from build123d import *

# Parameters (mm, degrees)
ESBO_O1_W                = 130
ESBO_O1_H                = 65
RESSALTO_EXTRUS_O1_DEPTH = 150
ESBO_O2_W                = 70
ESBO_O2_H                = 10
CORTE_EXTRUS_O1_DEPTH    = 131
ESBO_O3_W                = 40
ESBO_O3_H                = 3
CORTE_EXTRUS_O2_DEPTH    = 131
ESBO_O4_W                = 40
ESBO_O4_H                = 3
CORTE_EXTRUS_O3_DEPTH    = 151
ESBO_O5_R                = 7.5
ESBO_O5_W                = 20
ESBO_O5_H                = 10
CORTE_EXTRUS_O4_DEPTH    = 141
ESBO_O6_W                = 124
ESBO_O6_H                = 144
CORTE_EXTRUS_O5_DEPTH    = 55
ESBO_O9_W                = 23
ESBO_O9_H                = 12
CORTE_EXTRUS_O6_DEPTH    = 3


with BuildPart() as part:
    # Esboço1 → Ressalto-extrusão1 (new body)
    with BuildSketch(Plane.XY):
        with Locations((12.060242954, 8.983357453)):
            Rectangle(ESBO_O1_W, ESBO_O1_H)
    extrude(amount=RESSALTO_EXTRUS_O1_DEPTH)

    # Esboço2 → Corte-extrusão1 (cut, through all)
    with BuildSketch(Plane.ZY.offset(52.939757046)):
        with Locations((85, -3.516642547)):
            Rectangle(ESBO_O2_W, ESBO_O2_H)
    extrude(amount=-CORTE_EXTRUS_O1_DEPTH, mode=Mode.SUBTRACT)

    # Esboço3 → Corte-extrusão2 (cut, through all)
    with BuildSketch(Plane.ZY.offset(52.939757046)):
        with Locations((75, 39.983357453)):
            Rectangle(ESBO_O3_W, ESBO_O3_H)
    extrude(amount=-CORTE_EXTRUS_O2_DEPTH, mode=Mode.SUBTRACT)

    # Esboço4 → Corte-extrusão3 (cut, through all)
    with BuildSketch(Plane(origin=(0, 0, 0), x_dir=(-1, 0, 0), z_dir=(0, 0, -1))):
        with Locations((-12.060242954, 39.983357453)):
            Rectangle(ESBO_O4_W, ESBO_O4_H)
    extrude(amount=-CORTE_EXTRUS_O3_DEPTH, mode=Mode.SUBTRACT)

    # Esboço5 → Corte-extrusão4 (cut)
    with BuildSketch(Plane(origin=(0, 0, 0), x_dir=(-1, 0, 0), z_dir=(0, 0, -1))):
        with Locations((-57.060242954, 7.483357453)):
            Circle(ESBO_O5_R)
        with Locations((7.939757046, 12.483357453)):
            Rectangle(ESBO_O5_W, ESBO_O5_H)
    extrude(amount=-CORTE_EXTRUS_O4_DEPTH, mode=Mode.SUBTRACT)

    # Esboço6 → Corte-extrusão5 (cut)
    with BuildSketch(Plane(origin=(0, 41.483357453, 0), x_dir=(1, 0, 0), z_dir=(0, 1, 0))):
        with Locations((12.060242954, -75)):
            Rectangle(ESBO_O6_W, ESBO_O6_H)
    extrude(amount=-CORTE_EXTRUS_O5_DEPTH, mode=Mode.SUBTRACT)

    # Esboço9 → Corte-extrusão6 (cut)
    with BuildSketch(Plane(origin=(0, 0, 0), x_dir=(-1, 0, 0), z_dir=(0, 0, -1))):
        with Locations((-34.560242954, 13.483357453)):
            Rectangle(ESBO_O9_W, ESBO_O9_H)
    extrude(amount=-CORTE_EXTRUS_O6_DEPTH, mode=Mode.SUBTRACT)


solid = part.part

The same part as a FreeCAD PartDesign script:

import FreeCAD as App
import Part
import Sketcher
Q = App.Units.Quantity

doc = App.newDocument("Part")
body = doc.addObject("PartDesign::Body", "Body")

sketch1 = body.newObject("Sketcher::SketchObject", "Sketch")
sketch1.AttachmentSupport = (doc.getObject("XY_Plane"), [""])
sketch1.MapMode = "FlatFace"
sketch1.addGeometry([
    Part.LineSegment(App.Vector(-53, 41, 0), App.Vector(-53, -24, 0)),
    Part.LineSegment(App.Vector(-53, -24, 0), App.Vector(77, -24, 0)),
    Part.LineSegment(App.Vector(77, -24, 0), App.Vector(77, 41, 0)),
    Part.LineSegment(App.Vector(77, 41, 0), App.Vector(-53, 41, 0)),
], False)
sketch1.addConstraint([
    Sketcher.Constraint("Coincident", 0, 2, 1, 1),
    Sketcher.Constraint("Coincident", 1, 2, 2, 1),
    Sketcher.Constraint("Coincident", 2, 2, 3, 1),
    Sketcher.Constraint("Coincident", 3, 2, 0, 1),
    Sketcher.Constraint("Vertical", 0),
    Sketcher.Constraint("Horizontal", 1),
    Sketcher.Constraint("Vertical", 2),
    Sketcher.Constraint("Horizontal", 3),
    Sketcher.Constraint("DistanceX", 1, 1, 1, 2, Q("130 mm")),
    Sketcher.Constraint("DistanceY", 0, 2, 0, 1, Q("65 mm")),
    Sketcher.Constraint("DistanceX", 0, 2, -1, 1, Q("52.939757 mm")),
    Sketcher.Constraint("DistanceY", 0, 2, -1, 1, Q("23.516643 mm")),
])
pad1 = body.newObject("PartDesign::Pad", "Pad")
pad1.Profile = sketch1
pad1.Length = 150

sketch2 = body.newObject("Sketcher::SketchObject", "Sketch001")
sketch2.AttachmentSupport = (doc.getObject("YZ_Plane"), [""])
sketch2.MapMode = "FlatFace"
sketch2.AttachmentOffset = App.Placement(App.Vector(0, 0, -52.939757), App.Rotation())
sketch2.addGeometry([
    Part.LineSegment(App.Vector(1, 50, 0), App.Vector(-9, 50, 0)),
    Part.LineSegment(App.Vector(-9, 50, 0), App.Vector(-9, 120, 0)),
    Part.LineSegment(App.Vector(-9, 120, 0), App.Vector(1, 120, 0)),
    Part.LineSegment(App.Vector(1, 120, 0), App.Vector(1, 50, 0)),
], False)
sketch2.addConstraint([
    Sketcher.Constraint("Coincident", 0, 2, 1, 1),
    Sketcher.Constraint("Coincident", 1, 2, 2, 1),
    Sketcher.Constraint("Coincident", 2, 2, 3, 1),
    Sketcher.Constraint("Coincident", 3, 2, 0, 1),
    Sketcher.Constraint("Horizontal", 0),
    Sketcher.Constraint("Vertical", 1),
    Sketcher.Constraint("Horizontal", 2),
    Sketcher.Constraint("Vertical", 3),
    Sketcher.Constraint("DistanceX", 0, 2, 0, 1, Q("10 mm")),
    Sketcher.Constraint("DistanceY", 1, 1, 1, 2, Q("70 mm")),
    Sketcher.Constraint("DistanceY", -1, 1, 0, 2, Q("50 mm")),
    Sketcher.Constraint("DistanceX", 0, 2, -1, 1, Q("8.516643 mm")),
])
pocket1 = body.newObject("PartDesign::Pocket", "Pocket")
pocket1.Profile = sketch2
pocket1.Type = "ThroughAll"
pocket1.Reversed = True

sketch3 = body.newObject("Sketcher::SketchObject", "Sketch002")
sketch3.AttachmentSupport = (doc.getObject("YZ_Plane"), [""])
sketch3.MapMode = "FlatFace"
sketch3.AttachmentOffset = App.Placement(App.Vector(0, 0, -52.939757), App.Rotation())
sketch3.addGeometry([
    Part.LineSegment(App.Vector(41.5, 55, 0), App.Vector(38.5, 55, 0)),
    Part.LineSegment(App.Vector(38.5, 55, 0), App.Vector(38.5, 95, 0)),
    Part.LineSegment(App.Vector(38.5, 95, 0), App.Vector(41.5, 95, 0)),
    Part.LineSegment(App.Vector(41.5, 95, 0), App.Vector(41.5, 55, 0)),
], False)
sketch3.addConstraint([
    Sketcher.Constraint("Coincident", 0, 2, 1, 1),
    Sketcher.Constraint("Coincident", 1, 2, 2, 1),
    Sketcher.Constraint("Coincident", 2, 2, 3, 1),
    Sketcher.Constraint("Coincident", 3, 2, 0, 1),
    Sketcher.Constraint("Horizontal", 0),
    Sketcher.Constraint("Vertical", 1),
    Sketcher.Constraint("Horizontal", 2),
    Sketcher.Constraint("Vertical", 3),
    Sketcher.Constraint("DistanceX", 0, 2, 0, 1, Q("3 mm")),
    Sketcher.Constraint("DistanceY", 1, 1, 1, 2, Q("40 mm")),
    Sketcher.Constraint("DistanceY", -1, 1, 0, 2, Q("55 mm")),
    Sketcher.Constraint("DistanceX", -1, 1, 0, 2, Q("38.483357 mm")),
])
pocket2 = body.newObject("PartDesign::Pocket", "Pocket001")
pocket2.Profile = sketch3
pocket2.Type = "ThroughAll"
pocket2.Reversed = True

sketch4 = body.newObject("Sketcher::SketchObject", "Sketch003")
sketch4.AttachmentSupport = (doc.getObject("XY_Plane"), [""])
sketch4.MapMode = "FlatFace"
sketch4.addGeometry([
    Part.LineSegment(App.Vector(32.1, 41.5, 0), App.Vector(32.1, 38.5, 0)),
    Part.LineSegment(App.Vector(32.1, 38.5, 0), App.Vector(-7.9, 38.5, 0)),
    Part.LineSegment(App.Vector(-7.9, 38.5, 0), App.Vector(-7.9, 41.5, 0)),
    Part.LineSegment(App.Vector(-7.9, 41.5, 0), App.Vector(32.1, 41.5, 0)),
], False)
sketch4.addConstraint([
    Sketcher.Constraint("Coincident", 0, 2, 1, 1),
    Sketcher.Constraint("Coincident", 1, 2, 2, 1),
    Sketcher.Constraint("Coincident", 2, 2, 3, 1),
    Sketcher.Constraint("Coincident", 3, 2, 0, 1),
    Sketcher.Constraint("Vertical", 0),
    Sketcher.Constraint("Horizontal", 1),
    Sketcher.Constraint("Vertical", 2),
    Sketcher.Constraint("Horizontal", 3),
    Sketcher.Constraint("DistanceX", 1, 2, 1, 1, Q("40 mm")),
    Sketcher.Constraint("DistanceY", 0, 2, 0, 1, Q("3 mm")),
    Sketcher.Constraint("DistanceX", -1, 1, 0, 2, Q("32.060243 mm")),
    Sketcher.Constraint("DistanceY", -1, 1, 0, 2, Q("38.483357 mm")),
])
pocket3 = body.newObject("PartDesign::Pocket", "Pocket002")
pocket3.Profile = sketch4
pocket3.Type = "ThroughAll"
pocket3.Reversed = True

sketch5 = body.newObject("Sketcher::SketchObject", "Sketch004")
sketch5.AttachmentSupport = (doc.getObject("XY_Plane"), [""])
sketch5.MapMode = "FlatFace"
sketch5.addGeometry([
    Part.Circle(App.Vector(57, 7, 0), App.Vector(0, 0, 1), 8),
    Part.LineSegment(App.Vector(2, 17, 0), App.Vector(2, 7, 0)),
    Part.LineSegment(App.Vector(2, 7, 0), App.Vector(-18, 7, 0)),
    Part.LineSegment(App.Vector(-18, 7, 0), App.Vector(-18, 17, 0)),
    Part.LineSegment(App.Vector(-18, 17, 0), App.Vector(2, 17, 0)),
], False)
sketch5.addConstraint([
    Sketcher.Constraint("Coincident", 1, 2, 2, 1),
    Sketcher.Constraint("Coincident", 2, 2, 3, 1),
    Sketcher.Constraint("Coincident", 3, 2, 4, 1),
    Sketcher.Constraint("Coincident", 4, 2, 1, 1),
    Sketcher.Constraint("Vertical", 1),
    Sketcher.Constraint("Horizontal", 2),
    Sketcher.Constraint("Vertical", 3),
    Sketcher.Constraint("Horizontal", 4),
    Sketcher.Constraint("Horizontal", 0, 3, 1, 2),
    Sketcher.Constraint("Diameter", 0, Q("15 mm")),
    Sketcher.Constraint("DistanceX", 2, 2, 2, 1, Q("20 mm")),
    Sketcher.Constraint("DistanceY", 1, 2, 1, 1, Q("10 mm")),
    Sketcher.Constraint("DistanceX", 1, 2, 0, 3, Q("55 mm")),
    Sketcher.Constraint("DistanceX", -1, 1, 0, 3, Q("57.060243 mm")),
    Sketcher.Constraint("DistanceY", -1, 1, 0, 3, Q("7.483357 mm")),
])
pocket4 = body.newObject("PartDesign::Pocket", "Pocket003")
pocket4.Profile = sketch5
pocket4.Length = 141
pocket4.Reversed = True

sketch6 = body.newObject("Sketcher::SketchObject", "Sketch005")
sketch6.AttachmentSupport = (doc.getObject("XZ_Plane"), [""])
sketch6.MapMode = "FlatFace"
sketch6.AttachmentOffset = App.Placement(App.Vector(0, 0, -41.483357), App.Rotation())
sketch6.addGeometry([
    Part.LineSegment(App.Vector(-50, 3, 0), App.Vector(-50, 147, 0)),
    Part.LineSegment(App.Vector(-50, 147, 0), App.Vector(74, 147, 0)),
    Part.LineSegment(App.Vector(74, 147, 0), App.Vector(74, 3, 0)),
    Part.LineSegment(App.Vector(74, 3, 0), App.Vector(-50, 3, 0)),
], False)
sketch6.addConstraint([
    Sketcher.Constraint("Coincident", 0, 2, 1, 1),
    Sketcher.Constraint("Coincident", 1, 2, 2, 1),
    Sketcher.Constraint("Coincident", 2, 2, 3, 1),
    Sketcher.Constraint("Coincident", 3, 2, 0, 1),
    Sketcher.Constraint("Vertical", 0),
    Sketcher.Constraint("Horizontal", 1),
    Sketcher.Constraint("Vertical", 2),
    Sketcher.Constraint("Horizontal", 3),
    Sketcher.Constraint("DistanceX", 1, 1, 1, 2, Q("124 mm")),
    Sketcher.Constraint("DistanceY", 0, 1, 0, 2, Q("144 mm")),
    Sketcher.Constraint("DistanceY", -1, 1, 0, 2, Q("147 mm")),
    Sketcher.Constraint("DistanceX", 0, 2, -1, 1, Q("49.939757 mm")),
])
pocket5 = body.newObject("PartDesign::Pocket", "Pocket004")
pocket5.Profile = sketch6
pocket5.Length = 55
pocket5.Reversed = True

sketch7 = body.newObject("Sketcher::SketchObject", "Sketch006")
sketch7.AttachmentSupport = (doc.getObject("XY_Plane"), [""])
sketch7.MapMode = "FlatFace"
sketch7.addGeometry([
    Part.LineSegment(App.Vector(46, 19, 0), App.Vector(46, 7, 0)),
    Part.LineSegment(App.Vector(46, 7, 0), App.Vector(23, 7, 0)),
    Part.LineSegment(App.Vector(23, 7, 0), App.Vector(23, 19, 0)),
    Part.LineSegment(App.Vector(23, 19, 0), App.Vector(46, 19, 0)),
], False)
sketch7.addConstraint([
    Sketcher.Constraint("Coincident", 0, 2, 1, 1),
    Sketcher.Constraint("Coincident", 1, 2, 2, 1),
    Sketcher.Constraint("Coincident", 2, 2, 3, 1),
    Sketcher.Constraint("Coincident", 3, 2, 0, 1),
    Sketcher.Constraint("Vertical", 0),
    Sketcher.Constraint("Horizontal", 1),
    Sketcher.Constraint("Vertical", 2),
    Sketcher.Constraint("Horizontal", 3),
    Sketcher.Constraint("DistanceX", 1, 2, 1, 1, Q("23 mm")),
    Sketcher.Constraint("DistanceY", 0, 2, 0, 1, Q("12 mm")),
    Sketcher.Constraint("DistanceX", -1, 1, 0, 2, Q("46.060243 mm")),
    Sketcher.Constraint("DistanceY", -1, 1, 0, 2, Q("7.483357 mm")),
])
pocket6 = body.newObject("PartDesign::Pocket", "Pocket005")
pocket6.Profile = sketch7
pocket6.Length = 3
pocket6.Reversed = True

doc.recompute()
